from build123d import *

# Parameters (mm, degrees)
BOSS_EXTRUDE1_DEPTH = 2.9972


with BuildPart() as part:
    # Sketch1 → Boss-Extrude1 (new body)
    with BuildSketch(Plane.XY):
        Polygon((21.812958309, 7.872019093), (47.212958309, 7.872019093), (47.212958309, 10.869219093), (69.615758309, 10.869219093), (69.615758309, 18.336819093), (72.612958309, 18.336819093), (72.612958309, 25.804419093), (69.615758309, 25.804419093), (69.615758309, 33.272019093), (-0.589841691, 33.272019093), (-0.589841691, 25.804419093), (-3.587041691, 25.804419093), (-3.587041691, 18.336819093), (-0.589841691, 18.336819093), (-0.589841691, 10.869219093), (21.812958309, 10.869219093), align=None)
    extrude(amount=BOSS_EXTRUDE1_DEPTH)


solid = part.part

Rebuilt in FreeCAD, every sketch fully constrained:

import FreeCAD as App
import Part
import Sketcher
from FreeCAD import Vector
Q = App.Units.Quantity

doc = App.newDocument("Part")
body = doc.addObject("PartDesign::Body", "Body")

# Sketch on XY plane
sketch1 = doc.addObject("Sketcher::SketchObject", "Sketch")
body.addObject(sketch1)
sketch1.AttachmentSupport = (doc.XY_Plane, [""])
sketch1.MapMode = "FlatFace"
sketch1.addGeometry(Part.LineSegment(Vector(21.812958, 7.872019, 0), Vector(47.212958, 7.872019, 0)), False)
sketch1.addGeometry(Part.LineSegment(Vector(47.212958, 7.872019, 0), Vector(47.212958, 10.869219, 0)), False)
sketch1.addGeometry(Part.LineSegment(Vector(47.212958, 10.869219, 0), Vector(69.615758, 10.869219, 0)), False)
sketch1.addGeometry(Part.LineSegment(Vector(69.615758, 10.869219, 0), Vector(69.615758, 18.336819, 0)), False)
sketch1.addGeometry(Part.LineSegment(Vector(69.615758, 18.336819, 0), Vector(72.612958, 18.336819, 0)), False)
sketch1.addGeometry(Part.LineSegment(Vector(72.612958, 18.336819, 0), Vector(72.612958, 25.804419, 0)), False)
sketch1.addGeometry(Part.LineSegment(Vector(72.612958, 25.804419, 0), Vector(69.615758, 25.804419, 0)), False)
sketch1.addGeometry(Part.LineSegment(Vector(69.615758, 25.804419, 0), Vector(69.615758, 33.272019, 0)), False)
sketch1.addGeometry(Part.LineSegment(Vector(69.615758, 33.272019, 0), Vector(-0.589842, 33.272019, 0)), False)
sketch1.addGeometry(Part.LineSegment(Vector(-0.589842, 33.272019, 0), Vector(-0.589842, 25.804419, 0)), False)
sketch1.addGeometry(Part.LineSegment(Vector(-0.589842, 25.804419, 0), Vector(-3.587042, 25.804419, 0)), False)
sketch1.addGeometry(Part.LineSegment(Vector(-3.587042, 25.804419, 0), Vector(-3.587042, 18.336819, 0)), False)
sketch1.addGeometry(Part.LineSegment(Vector(-3.587042, 18.336819, 0), Vector(-0.589842, 18.336819, 0)), False)
sketch1.addGeometry(Part.LineSegment(Vector(-0.589842, 18.336819, 0), Vector(-0.589842, 10.869219, 0)), False)
sketch1.addGeometry(Part.LineSegment(Vector(-0.589842, 10.869219, 0), Vector(21.812958, 10.869219, 0)), False)
sketch1.addGeometry(Part.LineSegment(Vector(21.812958, 10.869219, 0), Vector(21.812958, 7.872019, 0)), False)
sketch1.addConstraint(Sketcher.Constraint("Coincident", 0, 2, 1, 1))
sketch1.addConstraint(Sketcher.Constraint("Coincident", 1, 2, 2, 1))
sketch1.addConstraint(Sketcher.Constraint("Coincident", 2, 2, 3, 1))
sketch1.addConstraint(Sketcher.Constraint("Coincident", 3, 2, 4, 1))
sketch1.addConstraint(Sketcher.Constraint("Coincident", 4, 2, 5, 1))
sketch1.addConstraint(Sketcher.Constraint("Coincident", 5, 2, 6, 1))
sketch1.addConstraint(Sketcher.Constraint("Coincident", 6, 2, 7, 1))
sketch1.addConstraint(Sketcher.Constraint("Coincident", 7, 2, 8, 1))
sketch1.addConstraint(Sketcher.Constraint("Coincident", 8, 2, 9, 1))
sketch1.addConstraint(Sketcher.Constraint("Coincident", 9, 2, 10, 1))
sketch1.addConstraint(Sketcher.Constraint("Coincident", 10, 2, 11, 1))
sketch1.addConstraint(Sketcher.Constraint("Coincident", 11, 2, 12, 1))
sketch1.addConstraint(Sketcher.Constraint("Coincident", 12, 2, 13, 1))
sketch1.addConstraint(Sketcher.Constraint("Coincident", 13, 2, 14, 1))
sketch1.addConstraint(Sketcher.Constraint("Coincident", 14, 2, 15, 1))
sketch1.addConstraint(Sketcher.Constraint("Coincident", 15, 2, 0, 1))
sketch1.addConstraint(Sketcher.Constraint("Horizontal", 0))
sketch1.addConstraint(Sketcher.Constraint("Vertical", 1))
sketch1.addConstraint(Sketcher.Constraint("Horizontal", 2))
sketch1.addConstraint(Sketcher.Constraint("Vertical", 3))
sketch1.addConstraint(Sketcher.Constraint("Horizontal", 4))
sketch1.addConstraint(Sketcher.Constraint("Vertical", 5))
sketch1.addConstraint(Sketcher.Constraint("Horizontal", 6))
sketch1.addConstraint(Sketcher.Constraint("Vertical", 7))
sketch1.addConstraint(Sketcher.Constraint("Horizontal", 8))
sketch1.addConstraint(Sketcher.Constraint("Vertical", 9))
sketch1.addConstraint(Sketcher.Constraint("Horizontal", 10))
sketch1.addConstraint(Sketcher.Constraint("Vertical", 11))
sketch1.addConstraint(Sketcher.Constraint("Horizontal", 12))
sketch1.addConstraint(Sketcher.Constraint("Vertical", 13))
sketch1.addConstraint(Sketcher.Constraint("Horizontal", 14))
sketch1.addConstraint(Sketcher.Constraint("Vertical", 15))
sketch1.addConstraint(Sketcher.Constraint("Horizontal", 6, 2, 9, 2))
sketch1.addConstraint(Sketcher.Constraint("Horizontal", 4, 2, 11, 2))
sketch1.addConstraint(Sketcher.Constraint("Horizontal", 2, 2, 13, 2))
sketch1.addConstraint(Sketcher.Constraint("Vertical", 3, 2, 6, 2))
sketch1.addConstraint(Sketcher.Constraint("Vertical", 9, 2, 12, 2))
sketch1.addConstraint(Sketcher.Constraint("Equal", 6, 10))
sketch1.addConstraint(Sketcher.Constraint("Equal", 2, 14))
sketch1.addConstraint(Sketcher.Constraint("Equal", 12, 1))
sketch1.addConstraint(Sketcher.Constraint("Equal", 3, 5))
sketch1.addConstraint(Sketcher.Constraint("Equal", 5, 7))
sketch1.addConstraint(Sketcher.Constraint("DistanceX", 0, 1, 0, 2, Q("1 in")))
sketch1.addConstraint(Sketcher.Constraint("DistanceX", 1, 2, 4, 2, Q("1 in")))
sketch1.addConstraint(Sketcher.Constraint("DistanceY", 0, 2, 8, 2, Q("1 in")))
sketch1.addConstraint(Sketcher.Constraint("DistanceX", 2, 1, 2, 2, Q("0.882 in")))
sketch1.addConstraint(Sketcher.Constraint("DistanceX", -1, 1, 0, 2, 47.212958))
sketch1.addConstraint(Sketcher.Constraint("DistanceY", -1, 1, 0, 2, 7.872019))
pad1 = doc.addObject("PartDesign::Pad", "Pad")
body.addObject(pad1)
pad1.Profile = sketch1
pad1.Length = Q("0.118 in")

doc.recompute()
